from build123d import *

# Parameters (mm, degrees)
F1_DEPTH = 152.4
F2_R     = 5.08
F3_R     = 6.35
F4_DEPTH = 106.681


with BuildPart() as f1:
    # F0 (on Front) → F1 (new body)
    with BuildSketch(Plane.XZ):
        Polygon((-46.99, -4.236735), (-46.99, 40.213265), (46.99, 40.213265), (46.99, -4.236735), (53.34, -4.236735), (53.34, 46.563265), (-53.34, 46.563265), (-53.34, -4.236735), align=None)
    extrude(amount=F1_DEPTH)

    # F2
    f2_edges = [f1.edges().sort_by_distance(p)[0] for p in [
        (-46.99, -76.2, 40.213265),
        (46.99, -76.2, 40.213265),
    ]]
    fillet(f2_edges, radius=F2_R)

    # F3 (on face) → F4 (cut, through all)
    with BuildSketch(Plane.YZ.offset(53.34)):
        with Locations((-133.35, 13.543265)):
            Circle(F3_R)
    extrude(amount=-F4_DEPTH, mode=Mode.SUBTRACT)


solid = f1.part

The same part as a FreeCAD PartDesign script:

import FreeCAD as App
import Part
import Sketcher
from FreeCAD import Vector
Q = App.Units.Quantity


def edges_at(feature, points):
    """Names of the edges that pass closest to the given points."""
    edges = feature.Shape.Edges
    near = lambda p: min(range(len(edges)), key=lambda i: edges[i].distToShape(Part.Vertex(*p))[0])
    return sorted({f"Edge{near(p) + 1}" for p in points})

doc = App.newDocument("Part")
body = doc.addObject("PartDesign::Body", "Body")

sketch1 = doc.addObject("Sketcher::SketchObject", "Sketch")
body.addObject(sketch1)
sketch1.AttachmentSupport = (doc.XZ_Plane, [""])
sketch1.MapMode = "FlatFace"
sketch1.addGeometry([
    Part.LineSegment(Vector(-47, -4, 0), Vector(-47, 40, 0)),
    Part.LineSegment(Vector(-47, 40, 0), Vector(47, 40, 0)),
    Part.LineSegment(Vector(47, 40, 0), Vector(47, -4, 0)),
    Part.LineSegment(Vector(47, -4, 0), Vector(53, -4, 0)),
    Part.LineSegment(Vector(53, -4, 0), Vector(53, 47, 0)),
    Part.LineSegment(Vector(53, 47, 0), Vector(-53, 47, 0)),
    Part.LineSegment(Vector(-53, 47, 0), Vector(-53, -4, 0)),
    Part.LineSegment(Vector(-53, -4, 0), Vector(-47, -4, 0)),
], False)
sketch1.addConstraint([
    Sketcher.Constraint("Coincident", 0, 2, 1, 1),
    Sketcher.Constraint("Coincident", 1, 2, 2, 1),
    Sketcher.Constraint("Coincident", 2, 2, 3, 1),
    Sketcher.Constraint("Coincident", 3, 2, 4, 1),
    Sketcher.Constraint("Coincident", 4, 2, 5, 1),
    Sketcher.Constraint("Coincident", 5, 2, 6, 1),
    Sketcher.Constraint("Coincident", 6, 2, 7, 1),
    Sketcher.Constraint("Coincident", 7, 2, 0, 1),
    Sketcher.Constraint("Vertical", 0),
    Sketcher.Constraint("Horizontal", 1),
    Sketcher.Constraint("Vertical", 2),
    Sketcher.Constraint("Horizontal", 3),
    Sketcher.Constraint("Vertical", 4),
    Sketcher.Constraint("Horizontal", 5),
    Sketcher.Constraint("Vertical", 6),
    Sketcher.Constraint("Horizontal", 7),
    Sketcher.Constraint("Symmetric", 3, 2, 6, 2, -2),
    Sketcher.Constraint("Equal", 3, 7),
    Sketcher.Constraint("DistanceY", 4, 1, 4, 2, Q("2 in")),
    Sketcher.Constraint("DistanceX", 1, 1, 1, 2, Q("3.7 in")),
    Sketcher.Constraint("DistanceX", 5, 2, 5, 1, Q("4.2 in")),
    Sketcher.Constraint("DistanceY", 0, 1, 0, 2, Q("1.75 in")),
    Sketcher.Constraint("DistanceY", -1, 1, 0, 2, 40.213265),
])
pad1 = doc.addObject("PartDesign::Pad", "Pad")
body.addObject(pad1)
pad1.Profile = sketch1
pad1.Length = Q("6 in")
doc.recompute()

fillet = doc.addObject("PartDesign::Fillet", "Fillet")
body.addObject(fillet)
fillet.Base = (pad1, edges_at(pad1, [(-46.99, -76.2, 40.213), (46.99, -76.2, 40.213)]))
fillet.Radius = Q("0.2 in")

sketch2 = doc.addObject("Sketcher::SketchObject", "Sketch001")
body.addObject(sketch2)
sketch2.AttachmentSupport = (doc.YZ_Plane, [""])
sketch2.MapMode = "FlatFace"
sketch2.AttachmentOffset = App.Placement(Vector(0, 0, 2.1 * 25.4), App.Rotation())
sketch2.addGeometry(Part.Circle(Vector(-133, 14, 0), Vector(0, 0, 1), 6), False)
sketch2.addConstraint([
    Sketcher.Constraint("Diameter", 0, Q("0.5 in")),
    Sketcher.Constraint("DistanceX", 0, 3, -1, 1, Q("5.25 in")),
    Sketcher.Constraint("DistanceY", -1, 1, 0, 3, 13.543265),
])
pocket1 = doc.addObject("PartDesign::Pocket", "Pocket")
body.addObject(pocket1)
pocket1.Profile = sketch2
pocket1.Type = "ThroughAll"

doc.recompute()
